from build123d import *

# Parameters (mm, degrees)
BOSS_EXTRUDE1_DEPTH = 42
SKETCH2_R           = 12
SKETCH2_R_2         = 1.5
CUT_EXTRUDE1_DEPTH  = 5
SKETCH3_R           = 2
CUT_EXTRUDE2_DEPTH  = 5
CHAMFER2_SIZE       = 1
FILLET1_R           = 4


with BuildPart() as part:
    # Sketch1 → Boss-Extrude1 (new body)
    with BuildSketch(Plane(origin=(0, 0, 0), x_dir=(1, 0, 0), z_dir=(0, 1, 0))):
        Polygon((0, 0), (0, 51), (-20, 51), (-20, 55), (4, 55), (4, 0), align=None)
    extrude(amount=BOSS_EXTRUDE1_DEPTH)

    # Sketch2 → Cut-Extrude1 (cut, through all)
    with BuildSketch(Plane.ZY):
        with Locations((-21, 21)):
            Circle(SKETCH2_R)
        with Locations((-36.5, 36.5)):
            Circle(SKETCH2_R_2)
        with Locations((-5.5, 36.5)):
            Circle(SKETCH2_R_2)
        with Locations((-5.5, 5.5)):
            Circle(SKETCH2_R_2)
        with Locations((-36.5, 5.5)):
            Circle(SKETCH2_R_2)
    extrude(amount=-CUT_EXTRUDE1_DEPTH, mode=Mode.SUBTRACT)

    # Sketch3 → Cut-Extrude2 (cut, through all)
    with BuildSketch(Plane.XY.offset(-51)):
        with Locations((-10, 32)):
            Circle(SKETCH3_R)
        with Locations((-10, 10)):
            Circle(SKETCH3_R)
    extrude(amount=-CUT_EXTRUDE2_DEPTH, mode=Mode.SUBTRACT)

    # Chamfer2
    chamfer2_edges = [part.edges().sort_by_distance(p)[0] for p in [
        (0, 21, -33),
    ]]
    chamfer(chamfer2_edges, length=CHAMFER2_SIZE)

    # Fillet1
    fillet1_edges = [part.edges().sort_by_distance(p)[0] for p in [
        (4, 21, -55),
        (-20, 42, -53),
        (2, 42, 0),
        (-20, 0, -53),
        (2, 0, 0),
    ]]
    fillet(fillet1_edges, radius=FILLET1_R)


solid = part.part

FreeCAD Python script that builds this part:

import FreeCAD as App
import Part
import Sketcher
Q = App.Units.Quantity


def edges_at(feature, points):
    """Names of the edges that pass closest to the given points."""
    edges = feature.Shape.Edges
    near = lambda p: min(range(len(edges)), key=lambda i: edges[i].distToShape(Part.Vertex(*p))[0])
    return sorted({f"Edge{near(p) + 1}" for p in points})


def add_polygon(sketch, points):
    """Adds a closed chain of lines whose ends are joined by coincident constraints."""
    first, n = sketch.GeometryCount, len(points)
    for a, b in zip(points, points[1:] + points[:1]):
        sketch.addGeometry(Part.LineSegment(App.Vector(*a, 0), App.Vector(*b, 0)), False)
    for i in range(n):
        sketch.addConstraint(Sketcher.Constraint("Coincident", first + i, 2, first + (i + 1) % n, 1))

doc = App.newDocument("Part")
params = doc.addObject("Spreadsheet::Sheet", "Params")
for row, (alias, value) in enumerate([
    ("sketch1_width", "4 mm"),
    ("sketch1_width2", "24 mm"),
    ("sketch1_height", "51 mm"),
    ("pad1_length", "42 mm"),
    ("sketch2_diameter", "24 mm"),
    ("sketch2_diameter2", "3 mm"),
    ("sketch3_diameter", "4 mm"),
    ("chamfer_size", "1 mm"),
    ("fillet_radius", "4 mm"),
], start=1):
    params.set(f"A{row}", alias)
    params.set(f"B{row}", "=" + value)
    params.setAlias(f"B{row}", alias)

body = doc.addObject("PartDesign::Body", "Body")

sketch1 = doc.addObject("Sketcher::SketchObject", "Sketch")
body.addObject(sketch1)
sketch1.AttachmentSupport = (doc.XZ_Plane, [""])
sketch1.MapMode = "FlatFace"
add_polygon(sketch1, [(0, -51), (0, 0), (4, 0), (4, -55), (-20, -55), (-20, -51)])
sketch1.addConstraint([
    Sketcher.Constraint("Vertical", 0),
    Sketcher.Constraint("Horizontal", 1),
    Sketcher.Constraint("Vertical", 2),
    Sketcher.Constraint("Horizontal", 3),
    Sketcher.Constraint("Vertical", 4),
    Sketcher.Constraint("Horizontal", 5),
    Sketcher.Constraint("Coincident", 0, 2, -1, 1),
    Sketcher.Constraint("Equal", 1, 4),
    Sketcher.Constraint("DistanceX", 1, 1, 1, 2, Q("4 mm")),
    Sketcher.Constraint("DistanceX", 3, 2, 3, 1, Q("24 mm")),
    Sketcher.Constraint("DistanceY", 0, 1, 0, 2, Q("51 mm")),
])
sketch1.setExpression("Constraints[14]", "Params.sketch1_width")
sketch1.setExpression("Constraints[15]", "Params.sketch1_width2")
sketch1.setExpression("Constraints[16]", "Params.sketch1_height")
pad1 = doc.addObject("PartDesign::Pad", "Pad")
body.addObject(pad1)
pad1.Profile = sketch1
pad1.setExpression("Length", "Params.pad1_length")
pad1.Reversed = True

sketch2 = doc.addObject("Sketcher::SketchObject", "Sketch001")
body.addObject(sketch2)
sketch2.AttachmentSupport = (doc.YZ_Plane, [""])
sketch2.MapMode = "FlatFace"
sketch2.addGeometry([
    Part.Circle(App.Vector(21, -21, 0), App.Vector(0, 0, 1), 12),
    Part.Circle(App.Vector(36.5, -36.5, 0), App.Vector(0, 0, 1), 1.5),
    Part.Circle(App.Vector(36.5, -5.5, 0), App.Vector(0, 0, 1), 1.5),
    Part.Circle(App.Vector(5.5, -5.5, 0), App.Vector(0, 0, 1), 1.5),
    Part.Circle(App.Vector(5.5, -36.5, 0), App.Vector(0, 0, 1), 1.5),
], False)
sketch2.addConstraint([
    Sketcher.Constraint("Equal", 1, 2),
    Sketcher.Constraint("Equal", 2, 3),
    Sketcher.Constraint("Equal", 3, 4),
    Sketcher.Constraint("Horizontal", 2, 3, 3, 3),
    Sketcher.Constraint("Horizontal", 1, 3, 4, 3),
    Sketcher.Constraint("Vertical", 1, 3, 2, 3),
    Sketcher.Constraint("Vertical", 3, 3, 4, 3),
    Sketcher.Constraint("Diameter", 0, Q("24 mm")),
    Sketcher.Constraint("Diameter", 1, Q("3 mm")),
    Sketcher.Constraint("DistanceX", -1, 1, 0, 3, Q("21 mm")),
    Sketcher.Constraint("DistanceY", 0, 3, -1, 1, Q("21 mm")),
    Sketcher.Constraint("DistanceY", 1, 3, 2, 3, Q("31 mm")),
    Sketcher.Constraint("DistanceX", 3, 3, 2, 3, Q("31 mm")),
    Sketcher.Constraint("DistanceX", -1, 1, 1, 3, Q("36.5 mm")),
    Sketcher.Constraint("DistanceY", 1, 3, -1, 1, Q("36.5 mm")),
])
sketch2.setExpression("Constraints[7]", "Params.sketch2_diameter")
sketch2.setExpression("Constraints[8]", "Params.sketch2_diameter2")
pocket1 = doc.addObject("PartDesign::Pocket", "Pocket")
body.addObject(pocket1)
pocket1.Profile = sketch2
pocket1.Type = "ThroughAll"
pocket1.Reversed = True

sketch3 = doc.addObject("Sketcher::SketchObject", "Sketch002")
body.addObject(sketch3)
sketch3.AttachmentSupport = (doc.XY_Plane, [""])
sketch3.MapMode = "FlatFace"
sketch3.AttachmentOffset = App.Placement(App.Vector(0, 0, -51), App.Rotation())
sketch3.addGeometry([
    Part.Circle(App.Vector(-10, 32, 0), App.Vector(0, 0, 1), 2),
    Part.Circle(App.Vector(-10, 10, 0), App.Vector(0, 0, 1), 2),
], False)
sketch3.addConstraint([
    Sketcher.Constraint("Equal", 0, 1),
    Sketcher.Constraint("Vertical", 0, 3, 1, 3),
    Sketcher.Constraint("Diameter", 0, Q("4 mm")),
    Sketcher.Constraint("DistanceX", 0, 3, -1, 1, Q("10 mm")),
    Sketcher.Constraint("DistanceY", -1, 1, 0, 3, Q("32 mm")),
    Sketcher.Constraint("DistanceY", -1, 1, 1, 3, Q("10 mm")),
])
sketch3.setExpression("Constraints[2]", "Params.sketch3_diameter")
pocket2 = doc.addObject("PartDesign::Pocket", "Pocket001")
body.addObject(pocket2)
pocket2.Profile = sketch3
pocket2.Type = "ThroughAll"
doc.recompute()

chamfer = doc.addObject("PartDesign::Chamfer", "Chamfer")
body.addObject(chamfer)
chamfer.Base = (pocket2, edges_at(pocket2, [(0, 21, -33)]))
chamfer.setExpression("Size", "Params.chamfer_size")
doc.recompute()

fillet = doc.addObject("PartDesign::Fillet", "Fillet")
body.addObject(fillet)
fillet.Base = (chamfer, edges_at(chamfer, [
    (4, 21, -55),
    (-20, 42, -53),
    (2, 42, 0),
    (-20, 0, -53),
    (2, 0, 0),
]))
fillet.setExpression("Radius", "Params.fillet_radius")

doc.recompute()
